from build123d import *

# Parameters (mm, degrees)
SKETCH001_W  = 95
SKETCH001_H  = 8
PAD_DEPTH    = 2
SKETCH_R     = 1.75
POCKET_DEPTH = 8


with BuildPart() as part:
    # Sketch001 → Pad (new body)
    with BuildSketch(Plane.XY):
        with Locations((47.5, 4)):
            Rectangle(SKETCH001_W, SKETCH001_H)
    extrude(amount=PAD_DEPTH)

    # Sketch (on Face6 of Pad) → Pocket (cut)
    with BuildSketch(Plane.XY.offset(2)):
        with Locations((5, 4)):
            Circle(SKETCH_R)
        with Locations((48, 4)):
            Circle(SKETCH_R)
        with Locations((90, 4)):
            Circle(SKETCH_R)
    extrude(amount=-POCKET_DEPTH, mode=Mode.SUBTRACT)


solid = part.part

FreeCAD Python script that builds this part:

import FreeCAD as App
import Part
import Sketcher

V = App.Vector
Q = App.Units.Quantity


def add_polygon(sketch, points):
    """Adds a closed chain of lines whose ends are joined by coincident constraints."""
    first, n = sketch.GeometryCount, len(points)
    for a, b in zip(points, points[1:] + points[:1]):
        sketch.addGeometry(Part.LineSegment(App.Vector(*a, 0), App.Vector(*b, 0)), False)
    for i in range(n):
        sketch.addConstraint(Sketcher.Constraint("Coincident", first + i, 2, first + (i + 1) % n, 1))

doc = App.newDocument("Part")
body = doc.addObject("PartDesign::Body", "Body")

# Sketch on XY plane
sketch1 = body.newObject("Sketcher::SketchObject", "Sketch")
sketch1.AttachmentSupport = (doc.getObject("XY_Plane"), [""])
sketch1.MapMode = "FlatFace"
add_polygon(sketch1, [(0, 8), (0, 0), (95, 0), (95, 8)])  # lines 0-3
sketch1.addConstraint([
    Sketcher.Constraint("Vertical", 0),
    Sketcher.Constraint("Horizontal", 1),
    Sketcher.Constraint("Vertical", 2),
    Sketcher.Constraint("Horizontal", 3),
    Sketcher.Constraint("Coincident", 0, 2, -1, 1),
    Sketcher.Constraint("DistanceX", 1, 1, 1, 2, Q("95 mm")),
    Sketcher.Constraint("DistanceY", 0, 2, 0, 1, Q("8 mm")),
])
pad1 = body.newObject("PartDesign::Pad", "Pad")
pad1.Profile = sketch1
pad1.Length = 2

# Sketch on XY plane
sketch2 = body.newObject("Sketcher::SketchObject", "Sketch001")
sketch2.AttachmentSupport = (doc.getObject("XY_Plane"), [""])
sketch2.MapMode = "FlatFace"
sketch2.AttachmentOffset = App.Placement(V(0, 0, 2), App.Rotation())
sketch2.addGeometry([
    Part.Circle(V(5, 4, 0), V(0, 0, 1), 1.8),
    Part.Circle(V(48, 4, 0), V(0, 0, 1), 1.8),
    Part.Circle(V(90, 4, 0), V(0, 0, 1), 1.8),
], False)
sketch2.addConstraint([
    Sketcher.Constraint("Equal", 0, 1),
    Sketcher.Constraint("Equal", 1, 2),
    Sketcher.Constraint("Horizontal", 0, 3, 1, 3),
    Sketcher.Constraint("Horizontal", 1, 3, 2, 3),
    Sketcher.Constraint("Diameter", 0, Q("3.5 mm")),
    Sketcher.Constraint("DistanceX", -1, 1, 0, 3, Q("5 mm")),
    Sketcher.Constraint("DistanceY", -1, 1, 0, 3, Q("4 mm")),
    Sketcher.Constraint("DistanceX", -1, 1, 1, 3, Q("48 mm")),
    Sketcher.Constraint("DistanceX", -1, 1, 2, 3, Q("90 mm")),
])
pocket1 = body.newObject("PartDesign::Pocket", "Pocket")
pocket1.Profile = sketch2
pocket1.Length = 8

doc.recompute()
